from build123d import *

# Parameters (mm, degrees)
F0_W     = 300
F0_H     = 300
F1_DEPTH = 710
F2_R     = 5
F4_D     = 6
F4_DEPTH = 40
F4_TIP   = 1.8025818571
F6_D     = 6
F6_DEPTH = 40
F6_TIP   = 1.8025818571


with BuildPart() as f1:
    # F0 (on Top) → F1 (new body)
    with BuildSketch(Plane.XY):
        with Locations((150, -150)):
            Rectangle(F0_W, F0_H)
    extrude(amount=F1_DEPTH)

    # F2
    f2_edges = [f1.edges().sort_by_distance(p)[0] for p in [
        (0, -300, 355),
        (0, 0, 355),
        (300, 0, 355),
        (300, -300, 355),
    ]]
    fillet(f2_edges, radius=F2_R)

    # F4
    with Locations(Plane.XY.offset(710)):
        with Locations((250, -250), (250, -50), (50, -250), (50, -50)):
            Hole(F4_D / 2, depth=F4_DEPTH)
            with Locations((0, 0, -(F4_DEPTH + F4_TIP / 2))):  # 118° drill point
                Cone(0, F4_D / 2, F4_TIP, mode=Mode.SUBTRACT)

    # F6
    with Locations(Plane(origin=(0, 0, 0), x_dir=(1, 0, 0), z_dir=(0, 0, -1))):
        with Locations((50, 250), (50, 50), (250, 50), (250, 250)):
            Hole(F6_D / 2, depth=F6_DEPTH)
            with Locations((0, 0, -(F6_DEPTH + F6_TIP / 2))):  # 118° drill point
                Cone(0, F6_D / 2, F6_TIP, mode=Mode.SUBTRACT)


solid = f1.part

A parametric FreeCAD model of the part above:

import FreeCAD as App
import Part
import Sketcher
from FreeCAD import Vector


def edges_at(feature, points):
    """Names of the edges that pass closest to the given points."""
    edges = feature.Shape.Edges
    near = lambda p: min(range(len(edges)), key=lambda i: edges[i].distToShape(Part.Vertex(*p))[0])
    return sorted({f"Edge{near(p) + 1}" for p in points})


def add_polygon(sketch, points):
    """Adds a closed chain of lines whose ends are joined by coincident constraints."""
    first, n = sketch.GeometryCount, len(points)
    for a, b in zip(points, points[1:] + points[:1]):
        sketch.addGeometry(Part.LineSegment(App.Vector(*a, 0), App.Vector(*b, 0)), False)
    for i in range(n):
        sketch.addConstraint(Sketcher.Constraint("Coincident", first + i, 2, first + (i + 1) % n, 1))

doc = App.newDocument("Part")
body = doc.addObject("PartDesign::Body", "Body")

# Sketch on XY plane
sketch1 = doc.addObject("Sketcher::SketchObject", "Sketch")
body.addObject(sketch1)
sketch1.AttachmentSupport = (doc.XY_Plane, [""])
sketch1.MapMode = "FlatFace"
add_polygon(sketch1, [(0, 0), (0, -300), (300, -300), (300, 0)])  # lines 0-3
sketch1.addConstraint([
    Sketcher.Constraint("Vertical", 0),
    Sketcher.Constraint("Horizontal", 1),
    Sketcher.Constraint("Vertical", 2),
    Sketcher.Constraint("Horizontal", 3),
    Sketcher.Constraint("Coincident", 3, 2, -1, 1),
    Sketcher.Constraint("Equal", 3, 0),
    Sketcher.Constraint("DistanceX", 1, 1, 1, 2, 300.0),
])
pad1 = doc.addObject("PartDesign::Pad", "Pad")
body.addObject(pad1)
pad1.Profile = sketch1
pad1.Length = 710
doc.recompute()

fillet = doc.addObject("PartDesign::Fillet", "Fillet")
body.addObject(fillet)
fillet.Base = (pad1, edges_at(pad1, [
    (0, -300, 355),
    (0, 0, 355),
    (300, 0, 355),
    (300, -300, 355),
]))
fillet.Radius = 5

# Sketch on XY plane
sketch2 = doc.addObject("Sketcher::SketchObject", "Sketch001")
body.addObject(sketch2)
sketch2.AttachmentSupport = (doc.XY_Plane, [""])
sketch2.MapMode = "FlatFace"
sketch2.AttachmentOffset = App.Placement(Vector(0, 0, 710), App.Rotation())
sketch2.addGeometry([
    Part.Circle(Vector(250, -250, 0), Vector(0, 0, 1), 3),
    Part.Circle(Vector(250, -50, 0), Vector(0, 0, 1), 3),
    Part.Circle(Vector(50, -250, 0), Vector(0, 0, 1), 3),
    Part.Circle(Vector(50, -50, 0), Vector(0, 0, 1), 3),
], False)
sketch2.addConstraint([
    Sketcher.Constraint("Equal", 0, 1),
    Sketcher.Constraint("Equal", 1, 2),
    Sketcher.Constraint("Equal", 2, 3),
    Sketcher.Constraint("Horizontal", 0, 3, 2, 3),
    Sketcher.Constraint("Horizontal", 1, 3, 3, 3),
    Sketcher.Constraint("Vertical", 0, 3, 1, 3),
    Sketcher.Constraint("Vertical", 2, 3, 3, 3),
    Sketcher.Constraint("Diameter", 0, 6.0),
    Sketcher.Constraint("DistanceX", -1, 1, 0, 3, 250.0),
    Sketcher.Constraint("DistanceY", 0, 3, -1, 1, 250.0),
    Sketcher.Constraint("DistanceY", 1, 3, -1, 1, 50.0),
    Sketcher.Constraint("DistanceX", -1, 1, 2, 3, 50.0),
])
doc.recompute()
hole = doc.addObject("PartDesign::Hole", "Hole")
body.addObject(hole)
hole.Profile = sketch2
hole.ThreadType = "None"
hole.Diameter = 6
hole.DepthType = "Dimension"
hole.Depth = 40
hole.DrillPoint = "Angled"
hole.DrillPointAngle = 118

# Sketch on XY plane
sketch3 = doc.addObject("Sketcher::SketchObject", "Sketch002")
body.addObject(sketch3)
sketch3.AttachmentSupport = (doc.XY_Plane, [""])
sketch3.MapMode = "FlatFace"
sketch3.addGeometry([
    Part.Circle(Vector(50, -250, 0), Vector(0, 0, 1), 3),
    Part.Circle(Vector(50, -50, 0), Vector(0, 0, 1), 3),
    Part.Circle(Vector(250, -50, 0), Vector(0, 0, 1), 3),
    Part.Circle(Vector(250, -250, 0), Vector(0, 0, 1), 3),
], False)
sketch3.addConstraint([
    Sketcher.Constraint("Equal", 0, 1),
    Sketcher.Constraint("Equal", 1, 2),
    Sketcher.Constraint("Equal", 2, 3),
    Sketcher.Constraint("Horizontal", 1, 3, 2, 3),
    Sketcher.Constraint("Horizontal", 0, 3, 3, 3),
    Sketcher.Constraint("Vertical", 0, 3, 1, 3),
    Sketcher.Constraint("Vertical", 2, 3, 3, 3),
    Sketcher.Constraint("Diameter", 0, 6.0),
    Sketcher.Constraint("DistanceX", -1, 1, 0, 3, 50.0),
    Sketcher.Constraint("DistanceY", 0, 3, -1, 1, 250.0),
    Sketcher.Constraint("DistanceY", 1, 3, -1, 1, 50.0),
    Sketcher.Constraint("DistanceX", -1, 1, 2, 3, 250.0),
])
doc.recompute()
hole2 = doc.addObject("PartDesign::Hole", "Hole001")
body.addObject(hole2)
hole2.Profile = sketch3
hole2.ThreadType = "None"
hole2.Diameter = 6
hole2.DepthType = "Dimension"
hole2.Depth = 40
hole2.DrillPoint = "Angled"
hole2.DrillPointAngle = 118
hole2.Reversed = True

doc.recompute()
